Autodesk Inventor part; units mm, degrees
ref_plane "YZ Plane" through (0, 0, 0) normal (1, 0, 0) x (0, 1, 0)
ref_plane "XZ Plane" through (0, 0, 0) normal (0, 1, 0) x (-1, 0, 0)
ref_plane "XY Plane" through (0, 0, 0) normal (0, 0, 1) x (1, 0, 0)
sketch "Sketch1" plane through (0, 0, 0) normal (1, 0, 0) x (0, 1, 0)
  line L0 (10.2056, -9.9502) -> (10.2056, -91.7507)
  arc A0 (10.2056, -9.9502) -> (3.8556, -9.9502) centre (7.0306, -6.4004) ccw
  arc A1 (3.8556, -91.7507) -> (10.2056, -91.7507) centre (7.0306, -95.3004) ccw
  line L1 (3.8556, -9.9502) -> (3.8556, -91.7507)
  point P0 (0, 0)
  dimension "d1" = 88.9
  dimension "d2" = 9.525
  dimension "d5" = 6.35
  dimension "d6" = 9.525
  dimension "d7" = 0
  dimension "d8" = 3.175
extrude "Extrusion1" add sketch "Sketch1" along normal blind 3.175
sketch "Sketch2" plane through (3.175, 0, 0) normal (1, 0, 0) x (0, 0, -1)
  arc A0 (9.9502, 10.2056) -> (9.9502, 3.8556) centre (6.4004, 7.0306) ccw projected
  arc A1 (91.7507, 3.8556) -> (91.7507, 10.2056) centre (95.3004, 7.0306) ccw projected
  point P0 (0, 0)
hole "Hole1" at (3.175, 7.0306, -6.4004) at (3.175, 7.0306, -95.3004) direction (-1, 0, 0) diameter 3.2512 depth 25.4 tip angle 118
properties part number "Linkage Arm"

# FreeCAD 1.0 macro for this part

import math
import FreeCAD as App
import Part
import Sketcher
Q = App.Units.Quantity

doc = App.newDocument("Part")
body = doc.addObject("PartDesign::Body", "Body")

# Sketch on YZ plane
sketch1 = body.newObject("Sketcher::SketchObject", "Sketch")
sketch1.AttachmentSupport = (doc.getObject("YZ_Plane"), [""])
sketch1.MapMode = "FlatFace"
sketch1.addGeometry([
    Part.LineSegment(App.Vector(10.2, -91.8, 0), App.Vector(10.2, -10, 0)),
    Part.ArcOfCircle(Part.Circle(App.Vector(7, -6.4, 0), App.Vector(0, 0, 1), 4.8), math.radians(-48), math.radians(228)),
    Part.LineSegment(App.Vector(3.9, -10, 0), App.Vector(3.9, -91.8, 0)),
    Part.ArcOfCircle(Part.Circle(App.Vector(7, -95.3, 0), App.Vector(0, 0, 1), 4.8), math.radians(132), math.radians(408)),
], False)
sketch1.addConstraint([
    Sketcher.Constraint("Coincident", 0, 2, 1, 1),
    Sketcher.Constraint("Coincident", 1, 2, 2, 1),
    Sketcher.Constraint("Coincident", 2, 2, 3, 1),
    Sketcher.Constraint("Coincident", 3, 2, 0, 1),
    Sketcher.Constraint("Vertical", 0),
    Sketcher.Constraint("Vertical", 2),
    Sketcher.Constraint("Equal", 1, 3),
    Sketcher.Constraint("Horizontal", 0, 2, 1, 2),
    Sketcher.Constraint("Horizontal", 2, 2, 3, 2),
    Sketcher.Constraint("Radius", 1, Q("0.1875 in")),
    Sketcher.Constraint("DistanceY", 3, 3, 1, 3, Q("3.5 in")),
    Sketcher.Constraint("DistanceX", 1, 2, 0, 2, Q("0.25 in")),
    Sketcher.Constraint("DistanceX", -1, 1, 1, 3, Q("0.2768 in")),
    Sketcher.Constraint("DistanceY", 1, 3, -1, 1, Q("6.4004 mm")),
])
pad1 = body.newObject("PartDesign::Pad", "Pad")
pad1.Profile = sketch1
pad1.Length = Q("0.125 in")

# Sketch on YZ plane
sketch2 = body.newObject("Sketcher::SketchObject", "Sketch001")
sketch2.AttachmentSupport = (doc.getObject("YZ_Plane"), [""])
sketch2.MapMode = "FlatFace"
sketch2.AttachmentOffset = App.Placement(App.Vector(0, 0, 0.125 * 25.4), App.Rotation())
sketch2.addGeometry([
    Part.Circle(App.Vector(7, -6.4, 0), App.Vector(0, 0, 1), 1.6),
    Part.Circle(App.Vector(7, -95.3, 0), App.Vector(0, 0, 1), 1.6),
], False)
sketch2.addConstraint([
    Sketcher.Constraint("Equal", 0, 1),
    Sketcher.Constraint("Vertical", 0, 3, 1, 3),
    Sketcher.Constraint("Diameter", 0, Q("0.128 in")),
    Sketcher.Constraint("DistanceY", 1, 3, 0, 3, Q("3.5 in")),
    Sketcher.Constraint("DistanceX", -1, 1, 0, 3, Q("0.2768 in")),
    Sketcher.Constraint("DistanceY", 0, 3, -1, 1, Q("6.4004 mm")),
])
doc.recompute()
hole = body.newObject("PartDesign::Hole", "Hole")
hole.Profile = sketch2
hole.ThreadType = "None"
hole.Diameter = Q("0.128 in")
hole.DepthType = "Dimension"
hole.Depth = Q("1 in")
hole.DrillPoint = "Angled"
hole.DrillPointAngle = 118

doc.recompute()
